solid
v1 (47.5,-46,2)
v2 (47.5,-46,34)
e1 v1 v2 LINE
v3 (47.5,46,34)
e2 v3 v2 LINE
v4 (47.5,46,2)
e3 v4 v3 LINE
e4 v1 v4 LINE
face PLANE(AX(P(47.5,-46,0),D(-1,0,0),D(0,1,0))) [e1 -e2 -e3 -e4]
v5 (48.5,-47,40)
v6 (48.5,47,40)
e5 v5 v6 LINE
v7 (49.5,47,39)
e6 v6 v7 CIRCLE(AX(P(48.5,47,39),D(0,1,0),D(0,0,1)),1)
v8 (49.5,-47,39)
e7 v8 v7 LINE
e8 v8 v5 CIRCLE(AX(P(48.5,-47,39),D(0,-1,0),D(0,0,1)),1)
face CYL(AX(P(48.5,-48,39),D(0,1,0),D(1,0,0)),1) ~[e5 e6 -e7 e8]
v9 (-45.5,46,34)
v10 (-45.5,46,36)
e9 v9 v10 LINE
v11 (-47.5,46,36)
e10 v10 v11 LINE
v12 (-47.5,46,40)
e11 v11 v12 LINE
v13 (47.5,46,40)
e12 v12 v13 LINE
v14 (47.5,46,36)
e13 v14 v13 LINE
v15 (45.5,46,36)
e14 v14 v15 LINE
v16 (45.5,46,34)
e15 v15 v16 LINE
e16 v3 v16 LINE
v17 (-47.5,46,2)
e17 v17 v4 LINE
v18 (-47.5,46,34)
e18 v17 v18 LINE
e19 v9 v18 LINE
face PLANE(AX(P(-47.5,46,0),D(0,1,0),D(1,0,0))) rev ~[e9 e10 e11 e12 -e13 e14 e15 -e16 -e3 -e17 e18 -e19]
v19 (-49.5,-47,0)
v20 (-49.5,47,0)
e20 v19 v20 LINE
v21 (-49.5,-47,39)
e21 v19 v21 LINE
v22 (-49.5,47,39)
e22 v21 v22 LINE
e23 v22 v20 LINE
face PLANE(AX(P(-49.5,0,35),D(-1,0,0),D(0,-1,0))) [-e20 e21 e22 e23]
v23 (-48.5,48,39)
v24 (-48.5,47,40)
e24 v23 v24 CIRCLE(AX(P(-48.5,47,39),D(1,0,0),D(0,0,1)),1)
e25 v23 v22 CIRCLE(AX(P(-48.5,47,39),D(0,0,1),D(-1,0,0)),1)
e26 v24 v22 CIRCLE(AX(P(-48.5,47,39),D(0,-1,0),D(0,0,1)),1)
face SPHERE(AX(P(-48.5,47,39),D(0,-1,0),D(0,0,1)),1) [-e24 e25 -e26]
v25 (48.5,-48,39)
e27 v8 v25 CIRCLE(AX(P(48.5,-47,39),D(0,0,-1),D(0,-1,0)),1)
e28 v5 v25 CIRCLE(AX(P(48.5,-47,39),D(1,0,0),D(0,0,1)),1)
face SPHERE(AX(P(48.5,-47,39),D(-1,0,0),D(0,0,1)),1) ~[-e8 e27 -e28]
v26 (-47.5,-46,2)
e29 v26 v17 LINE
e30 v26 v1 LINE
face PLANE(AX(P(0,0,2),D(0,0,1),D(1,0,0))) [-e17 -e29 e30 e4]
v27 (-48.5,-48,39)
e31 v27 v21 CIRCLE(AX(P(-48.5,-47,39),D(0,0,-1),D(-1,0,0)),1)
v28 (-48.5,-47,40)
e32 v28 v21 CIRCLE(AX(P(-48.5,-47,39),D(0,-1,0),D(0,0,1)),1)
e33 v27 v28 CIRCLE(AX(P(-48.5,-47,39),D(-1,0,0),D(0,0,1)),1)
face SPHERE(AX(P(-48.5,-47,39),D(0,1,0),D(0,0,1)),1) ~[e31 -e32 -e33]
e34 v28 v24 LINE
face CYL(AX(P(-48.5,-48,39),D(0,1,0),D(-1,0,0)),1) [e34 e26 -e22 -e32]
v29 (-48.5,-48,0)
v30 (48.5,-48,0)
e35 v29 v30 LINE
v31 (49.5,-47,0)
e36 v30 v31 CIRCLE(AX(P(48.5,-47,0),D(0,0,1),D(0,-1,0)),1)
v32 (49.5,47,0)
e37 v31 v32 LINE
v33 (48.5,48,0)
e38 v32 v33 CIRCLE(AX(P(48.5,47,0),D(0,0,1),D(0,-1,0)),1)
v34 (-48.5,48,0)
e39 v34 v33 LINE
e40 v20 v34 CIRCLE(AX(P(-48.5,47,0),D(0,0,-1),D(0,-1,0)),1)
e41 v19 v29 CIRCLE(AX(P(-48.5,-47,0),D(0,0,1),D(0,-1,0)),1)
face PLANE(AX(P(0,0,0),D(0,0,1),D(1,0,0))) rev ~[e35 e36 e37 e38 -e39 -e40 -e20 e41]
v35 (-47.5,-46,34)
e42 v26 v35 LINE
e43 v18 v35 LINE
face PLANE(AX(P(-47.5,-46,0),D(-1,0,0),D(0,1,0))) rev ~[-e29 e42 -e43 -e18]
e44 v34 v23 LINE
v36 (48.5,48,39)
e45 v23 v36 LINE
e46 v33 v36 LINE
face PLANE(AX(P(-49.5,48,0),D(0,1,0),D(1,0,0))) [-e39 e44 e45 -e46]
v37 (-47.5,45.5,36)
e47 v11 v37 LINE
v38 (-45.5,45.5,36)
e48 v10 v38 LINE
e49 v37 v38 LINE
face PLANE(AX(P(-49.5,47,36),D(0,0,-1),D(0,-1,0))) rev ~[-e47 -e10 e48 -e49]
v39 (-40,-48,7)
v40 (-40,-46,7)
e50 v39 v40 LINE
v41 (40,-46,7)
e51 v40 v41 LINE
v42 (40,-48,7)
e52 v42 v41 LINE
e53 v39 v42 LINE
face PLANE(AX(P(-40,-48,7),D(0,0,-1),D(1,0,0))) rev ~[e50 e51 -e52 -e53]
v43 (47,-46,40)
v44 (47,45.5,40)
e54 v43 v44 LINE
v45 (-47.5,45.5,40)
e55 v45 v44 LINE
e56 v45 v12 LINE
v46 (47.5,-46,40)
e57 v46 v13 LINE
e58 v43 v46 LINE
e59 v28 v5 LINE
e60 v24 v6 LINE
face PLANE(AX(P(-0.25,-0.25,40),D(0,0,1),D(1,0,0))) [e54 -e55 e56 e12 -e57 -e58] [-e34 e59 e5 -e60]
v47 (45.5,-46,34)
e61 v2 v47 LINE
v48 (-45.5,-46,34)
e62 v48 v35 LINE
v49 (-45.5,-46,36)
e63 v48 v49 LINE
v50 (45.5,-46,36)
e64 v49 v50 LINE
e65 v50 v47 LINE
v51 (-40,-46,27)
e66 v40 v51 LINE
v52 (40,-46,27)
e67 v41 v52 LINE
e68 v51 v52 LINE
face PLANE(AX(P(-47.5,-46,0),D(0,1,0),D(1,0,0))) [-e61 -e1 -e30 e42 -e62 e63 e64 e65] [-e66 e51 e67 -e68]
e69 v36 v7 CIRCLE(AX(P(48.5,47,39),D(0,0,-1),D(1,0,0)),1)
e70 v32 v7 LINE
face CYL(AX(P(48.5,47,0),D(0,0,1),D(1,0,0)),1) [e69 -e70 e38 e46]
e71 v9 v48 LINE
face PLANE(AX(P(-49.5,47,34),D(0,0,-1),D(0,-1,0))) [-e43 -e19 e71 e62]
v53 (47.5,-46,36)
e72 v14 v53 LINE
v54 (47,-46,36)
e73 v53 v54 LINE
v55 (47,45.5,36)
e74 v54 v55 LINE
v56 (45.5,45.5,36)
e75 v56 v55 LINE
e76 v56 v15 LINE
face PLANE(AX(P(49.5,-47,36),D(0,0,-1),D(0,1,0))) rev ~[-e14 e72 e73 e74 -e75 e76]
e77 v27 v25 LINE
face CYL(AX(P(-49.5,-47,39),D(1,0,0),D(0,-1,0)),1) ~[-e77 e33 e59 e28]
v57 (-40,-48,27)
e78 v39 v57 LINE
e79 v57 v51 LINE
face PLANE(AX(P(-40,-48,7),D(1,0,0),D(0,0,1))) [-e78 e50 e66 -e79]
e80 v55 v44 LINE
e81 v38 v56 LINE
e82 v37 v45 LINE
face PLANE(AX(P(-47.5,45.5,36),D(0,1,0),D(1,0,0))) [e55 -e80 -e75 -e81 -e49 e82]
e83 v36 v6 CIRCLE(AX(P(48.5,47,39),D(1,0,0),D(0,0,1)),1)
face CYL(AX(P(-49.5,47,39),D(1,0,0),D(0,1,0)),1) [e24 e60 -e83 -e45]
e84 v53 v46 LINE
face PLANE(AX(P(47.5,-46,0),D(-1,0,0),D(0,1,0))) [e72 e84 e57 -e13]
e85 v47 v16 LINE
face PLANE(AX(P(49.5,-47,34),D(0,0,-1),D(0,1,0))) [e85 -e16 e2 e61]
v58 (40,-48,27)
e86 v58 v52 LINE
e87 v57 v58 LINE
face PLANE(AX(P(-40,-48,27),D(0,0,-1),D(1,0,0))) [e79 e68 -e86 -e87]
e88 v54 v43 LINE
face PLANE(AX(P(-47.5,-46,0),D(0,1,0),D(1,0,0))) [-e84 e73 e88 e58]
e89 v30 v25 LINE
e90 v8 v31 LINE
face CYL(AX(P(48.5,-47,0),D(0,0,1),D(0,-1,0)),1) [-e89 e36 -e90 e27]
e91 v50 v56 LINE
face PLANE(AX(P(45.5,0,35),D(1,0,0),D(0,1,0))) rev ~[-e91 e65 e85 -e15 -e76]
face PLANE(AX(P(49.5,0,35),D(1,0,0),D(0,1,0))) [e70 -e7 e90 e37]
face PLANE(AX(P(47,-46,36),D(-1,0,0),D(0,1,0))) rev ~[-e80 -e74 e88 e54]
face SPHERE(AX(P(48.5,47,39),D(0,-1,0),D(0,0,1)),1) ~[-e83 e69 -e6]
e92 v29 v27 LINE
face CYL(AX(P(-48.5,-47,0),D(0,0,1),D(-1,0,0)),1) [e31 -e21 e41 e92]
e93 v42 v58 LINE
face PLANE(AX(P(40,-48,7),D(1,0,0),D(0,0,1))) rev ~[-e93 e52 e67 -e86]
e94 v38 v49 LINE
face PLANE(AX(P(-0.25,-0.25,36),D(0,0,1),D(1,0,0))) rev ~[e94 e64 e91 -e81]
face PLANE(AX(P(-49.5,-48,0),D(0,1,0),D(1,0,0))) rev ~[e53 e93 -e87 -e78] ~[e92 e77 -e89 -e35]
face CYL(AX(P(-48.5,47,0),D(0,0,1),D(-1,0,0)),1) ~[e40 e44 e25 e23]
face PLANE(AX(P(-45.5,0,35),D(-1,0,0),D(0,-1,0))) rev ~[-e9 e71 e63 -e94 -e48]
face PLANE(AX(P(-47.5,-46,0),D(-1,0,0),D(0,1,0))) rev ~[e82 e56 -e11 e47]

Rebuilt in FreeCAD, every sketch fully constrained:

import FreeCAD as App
import Part
import Sketcher
from FreeCAD import Vector
Q = App.Units.Quantity


def edges_at(feature, points):
    """Names of the edges that pass closest to the given points."""
    edges = feature.Shape.Edges
    near = lambda p: min(range(len(edges)), key=lambda i: edges[i].distToShape(Part.Vertex(*p))[0])
    return sorted({f"Edge{near(p) + 1}" for p in points})

doc = App.newDocument("Part")
body = doc.addObject("PartDesign::Body", "Body")

sketch1 = body.newObject("Sketcher::SketchObject", "Sketch")
sketch1.AttachmentSupport = (doc.getObject("XY_Plane"), [""])
sketch1.MapMode = "FlatFace"
sketch1.addGeometry([
    Part.LineSegment(Vector(-50, 48, 0), Vector(-50, -48, 0)),
    Part.LineSegment(Vector(-50, -48, 0), Vector(50, -48, 0)),
    Part.LineSegment(Vector(50, -48, 0), Vector(50, 48, 0)),
    Part.LineSegment(Vector(50, 48, 0), Vector(-50, 48, 0)),
    Part.LineSegment(Vector(48, -46, 0), Vector(-48, -46, 0)),
    Part.LineSegment(Vector(-48, -46, 0), Vector(-48, 46, 0)),
    Part.LineSegment(Vector(-48, 46, 0), Vector(48, 46, 0)),
    Part.LineSegment(Vector(48, 46, 0), Vector(48, -46, 0)),
], False)
sketch1.addConstraint([
    Sketcher.Constraint("Coincident", 0, 2, 1, 1),
    Sketcher.Constraint("Coincident", 1, 2, 2, 1),
    Sketcher.Constraint("Coincident", 2, 2, 3, 1),
    Sketcher.Constraint("Coincident", 3, 2, 0, 1),
    Sketcher.Constraint("Coincident", 4, 2, 5, 1),
    Sketcher.Constraint("Coincident", 5, 2, 6, 1),
    Sketcher.Constraint("Coincident", 6, 2, 7, 1),
    Sketcher.Constraint("Coincident", 7, 2, 4, 1),
    Sketcher.Constraint("Vertical", 0),
    Sketcher.Constraint("Horizontal", 1),
    Sketcher.Constraint("Vertical", 2),
    Sketcher.Constraint("Horizontal", 3),
    Sketcher.Constraint("Horizontal", 4),
    Sketcher.Constraint("Vertical", 5),
    Sketcher.Constraint("Horizontal", 6),
    Sketcher.Constraint("Vertical", 7),
    Sketcher.Constraint("Symmetric", 0, 2, 2, 2, -1, 1),
    Sketcher.Constraint("Symmetric", 4, 2, 6, 2, -1, 1),
    Sketcher.Constraint("DistanceX", 1, 1, 1, 2, Q("99 mm")),
    Sketcher.Constraint("DistanceX", 4, 2, 4, 1, Q("95 mm")),
    Sketcher.Constraint("DistanceY", 0, 2, 0, 1, Q("96 mm")),
    Sketcher.Constraint("DistanceY", 5, 1, 5, 2, Q("92 mm")),
])
pad1 = body.newObject("PartDesign::Pad", "Pad")
pad1.Profile = sketch1
pad1.Length = 40

sketch2 = body.newObject("Sketcher::SketchObject", "Sketch001")
sketch2.AttachmentSupport = (doc.getObject("XY_Plane"), [""])
sketch2.MapMode = "FlatFace"
sketch2.addGeometry([
    Part.LineSegment(Vector(-48, 46, 0), Vector(-48, -46, 0)),
    Part.LineSegment(Vector(-48, -46, 0), Vector(48, -46, 0)),
    Part.LineSegment(Vector(48, -46, 0), Vector(48, 46, 0)),
    Part.LineSegment(Vector(48, 46, 0), Vector(-48, 46, 0)),
], False)
sketch2.addConstraint([
    Sketcher.Constraint("Coincident", 0, 2, 1, 1),
    Sketcher.Constraint("Coincident", 1, 2, 2, 1),
    Sketcher.Constraint("Coincident", 2, 2, 3, 1),
    Sketcher.Constraint("Coincident", 3, 2, 0, 1),
    Sketcher.Constraint("Vertical", 0),
    Sketcher.Constraint("Horizontal", 1),
    Sketcher.Constraint("Vertical", 2),
    Sketcher.Constraint("Horizontal", 3),
    Sketcher.Constraint("Symmetric", 0, 2, 2, 2, -1, 1),
    Sketcher.Constraint("DistanceX", 1, 1, 1, 2, Q("95 mm")),
    Sketcher.Constraint("DistanceY", 0, 2, 0, 1, Q("92 mm")),
])
pad2 = body.newObject("PartDesign::Pad", "Pad001")
pad2.Profile = sketch2
pad2.Length = 2

sketch3 = body.newObject("Sketcher::SketchObject", "Sketch002")
sketch3.AttachmentSupport = (doc.getObject("XZ_Plane"), [""])
sketch3.MapMode = "FlatFace"
sketch3.AttachmentOffset = App.Placement(Vector(0, 0, 48), App.Rotation())
sketch3.addGeometry([
    Part.LineSegment(Vector(-40, 27, 0), Vector(-40, 7, 0)),
    Part.LineSegment(Vector(-40, 7, 0), Vector(40, 7, 0)),
    Part.LineSegment(Vector(40, 7, 0), Vector(40, 27, 0)),
    Part.LineSegment(Vector(40, 27, 0), Vector(-40, 27, 0)),
], False)
sketch3.addConstraint([
    Sketcher.Constraint("Coincident", 0, 2, 1, 1),
    Sketcher.Constraint("Coincident", 1, 2, 2, 1),
    Sketcher.Constraint("Coincident", 2, 2, 3, 1),
    Sketcher.Constraint("Coincident", 3, 2, 0, 1),
    Sketcher.Constraint("Vertical", 0),
    Sketcher.Constraint("Horizontal", 1),
    Sketcher.Constraint("Vertical", 2),
    Sketcher.Constraint("Horizontal", 3),
    Sketcher.Constraint("DistanceX", 1, 1, 1, 2, Q("80 mm")),
    Sketcher.Constraint("DistanceY", 0, 2, 0, 1, Q("20 mm")),
    Sketcher.Constraint("DistanceX", 0, 2, -1, 1, Q("40 mm")),
    Sketcher.Constraint("DistanceY", -1, 1, 0, 2, Q("7 mm")),
])
pocket1 = body.newObject("PartDesign::Pocket", "Pocket")
pocket1.Profile = sketch3
pocket1.Length = 2
doc.recompute()

fillet = body.newObject("PartDesign::Fillet", "Fillet")
fillet.Base = (pocket1, edges_at(pocket1, [
    (-49.5, 0, 40),
    (0, -48, 40),
    (49.5, 0, 40),
    (0, 48, 40),
    (-49.5, -48, 20),
    (49.5, -48, 20),
    (49.5, 48, 20),
    (-49.5, 48, 20),
]))
fillet.Radius = 1

sketch4 = body.newObject("Sketcher::SketchObject", "Sketch003")
sketch4.AttachmentSupport = (doc.getObject("YZ_Plane"), [""])
sketch4.MapMode = "FlatFace"
sketch4.AttachmentOffset = App.Placement(Vector(0, 0, -49.5), App.Rotation())
sketch4.addGeometry([
    Part.LineSegment(Vector(47, 36, 0), Vector(47, 34, 0)),
    Part.LineSegment(Vector(47, 34, 0), Vector(-47, 34, 0)),
    Part.LineSegment(Vector(-47, 34, 0), Vector(-47, 36, 0)),
    Part.LineSegment(Vector(-47, 36, 0), Vector(47, 36, 0)),
], False)
sketch4.addConstraint([
    Sketcher.Constraint("Coincident", 0, 2, 1, 1),
    Sketcher.Constraint("Coincident", 1, 2, 2, 1),
    Sketcher.Constraint("Coincident", 2, 2, 3, 1),
    Sketcher.Constraint("Coincident", 3, 2, 0, 1),
    Sketcher.Constraint("Vertical", 0),
    Sketcher.Constraint("Horizontal", 1),
    Sketcher.Constraint("Vertical", 2),
    Sketcher.Constraint("Horizontal", 3),
    Sketcher.Constraint("DistanceX", 1, 2, 1, 1, Q("94 mm")),
    Sketcher.Constraint("DistanceY", 0, 2, 0, 1, Q("2 mm")),
    Sketcher.Constraint("DistanceX", -1, 1, 0, 2, Q("47 mm")),
    Sketcher.Constraint("DistanceY", -1, 1, 0, 2, Q("34 mm")),
])
pad3 = body.newObject("PartDesign::Pad", "Pad002")
pad3.Profile = sketch4
pad3.Length = 4

sketch5 = body.newObject("Sketcher::SketchObject", "Sketch004")
sketch5.AttachmentSupport = (doc.getObject("YZ_Plane"), [""])
sketch5.MapMode = "FlatFace"
sketch5.AttachmentOffset = App.Placement(Vector(0, 0, 49.5), App.Rotation())
sketch5.addGeometry([
    Part.LineSegment(Vector(-47, 36, 0), Vector(-47, 34, 0)),
    Part.LineSegment(Vector(-47, 34, 0), Vector(47, 34, 0)),
    Part.LineSegment(Vector(47, 34, 0), Vector(47, 36, 0)),
    Part.LineSegment(Vector(47, 36, 0), Vector(-47, 36, 0)),
], False)
sketch5.addConstraint([
    Sketcher.Constraint("Coincident", 0, 2, 1, 1),
    Sketcher.Constraint("Coincident", 1, 2, 2, 1),
    Sketcher.Constraint("Coincident", 2, 2, 3, 1),
    Sketcher.Constraint("Coincident", 3, 2, 0, 1),
    Sketcher.Constraint("Vertical", 0),
    Sketcher.Constraint("Horizontal", 1),
    Sketcher.Constraint("Vertical", 2),
    Sketcher.Constraint("Horizontal", 3),
    Sketcher.Constraint("DistanceX", 1, 1, 1, 2, Q("94 mm")),
    Sketcher.Constraint("DistanceY", 0, 2, 0, 1, Q("2 mm")),
    Sketcher.Constraint("DistanceX", 0, 2, -1, 1, Q("47 mm")),
    Sketcher.Constraint("DistanceY", -1, 1, 0, 2, Q("34 mm")),
])
pad4 = body.newObject("PartDesign::Pad", "Pad003")
pad4.Profile = sketch5
pad4.Length = 4
pad4.Reversed = True

sketch6 = body.newObject("Sketcher::SketchObject", "Sketch005")
sketch6.AttachmentSupport = (doc.getObject("XY_Plane"), [""])
sketch6.MapMode = "FlatFace"
sketch6.AttachmentOffset = App.Placement(Vector(0, 0, 36), App.Rotation())
sketch6.addGeometry([
    Part.LineSegment(Vector(-48, 46, 0), Vector(-48, -46, 0)),
    Part.LineSegment(Vector(-48, -46, 0), Vector(47, -46, 0)),
    Part.LineSegment(Vector(47, -46, 0), Vector(47, 46, 0)),
    Part.LineSegment(Vector(47, 46, 0), Vector(-48, 46, 0)),
], False)
sketch6.addConstraint([
    Sketcher.Constraint("Coincident", 0, 2, 1, 1),
    Sketcher.Constraint("Coincident", 1, 2, 2, 1),
    Sketcher.Constraint("Coincident", 2, 2, 3, 1),
    Sketcher.Constraint("Coincident", 3, 2, 0, 1),
    Sketcher.Constraint("Vertical", 0),
    Sketcher.Constraint("Horizontal", 1),
    Sketcher.Constraint("Vertical", 2),
    Sketcher.Constraint("Horizontal", 3),
    Sketcher.Constraint("DistanceX", 1, 1, 1, 2, Q("94.5 mm")),
    Sketcher.Constraint("DistanceY", 0, 2, 0, 1, Q("91.5 mm")),
    Sketcher.Constraint("DistanceY", 0, 2, -1, 1, Q("46 mm")),
    Sketcher.Constraint("DistanceX", -1, 1, 1, 2, Q("47 mm")),
])
pad5 = body.newObject("PartDesign::Pad", "Pad004")
pad5.Profile = sketch6
pad5.Length = 4

doc.recompute()
